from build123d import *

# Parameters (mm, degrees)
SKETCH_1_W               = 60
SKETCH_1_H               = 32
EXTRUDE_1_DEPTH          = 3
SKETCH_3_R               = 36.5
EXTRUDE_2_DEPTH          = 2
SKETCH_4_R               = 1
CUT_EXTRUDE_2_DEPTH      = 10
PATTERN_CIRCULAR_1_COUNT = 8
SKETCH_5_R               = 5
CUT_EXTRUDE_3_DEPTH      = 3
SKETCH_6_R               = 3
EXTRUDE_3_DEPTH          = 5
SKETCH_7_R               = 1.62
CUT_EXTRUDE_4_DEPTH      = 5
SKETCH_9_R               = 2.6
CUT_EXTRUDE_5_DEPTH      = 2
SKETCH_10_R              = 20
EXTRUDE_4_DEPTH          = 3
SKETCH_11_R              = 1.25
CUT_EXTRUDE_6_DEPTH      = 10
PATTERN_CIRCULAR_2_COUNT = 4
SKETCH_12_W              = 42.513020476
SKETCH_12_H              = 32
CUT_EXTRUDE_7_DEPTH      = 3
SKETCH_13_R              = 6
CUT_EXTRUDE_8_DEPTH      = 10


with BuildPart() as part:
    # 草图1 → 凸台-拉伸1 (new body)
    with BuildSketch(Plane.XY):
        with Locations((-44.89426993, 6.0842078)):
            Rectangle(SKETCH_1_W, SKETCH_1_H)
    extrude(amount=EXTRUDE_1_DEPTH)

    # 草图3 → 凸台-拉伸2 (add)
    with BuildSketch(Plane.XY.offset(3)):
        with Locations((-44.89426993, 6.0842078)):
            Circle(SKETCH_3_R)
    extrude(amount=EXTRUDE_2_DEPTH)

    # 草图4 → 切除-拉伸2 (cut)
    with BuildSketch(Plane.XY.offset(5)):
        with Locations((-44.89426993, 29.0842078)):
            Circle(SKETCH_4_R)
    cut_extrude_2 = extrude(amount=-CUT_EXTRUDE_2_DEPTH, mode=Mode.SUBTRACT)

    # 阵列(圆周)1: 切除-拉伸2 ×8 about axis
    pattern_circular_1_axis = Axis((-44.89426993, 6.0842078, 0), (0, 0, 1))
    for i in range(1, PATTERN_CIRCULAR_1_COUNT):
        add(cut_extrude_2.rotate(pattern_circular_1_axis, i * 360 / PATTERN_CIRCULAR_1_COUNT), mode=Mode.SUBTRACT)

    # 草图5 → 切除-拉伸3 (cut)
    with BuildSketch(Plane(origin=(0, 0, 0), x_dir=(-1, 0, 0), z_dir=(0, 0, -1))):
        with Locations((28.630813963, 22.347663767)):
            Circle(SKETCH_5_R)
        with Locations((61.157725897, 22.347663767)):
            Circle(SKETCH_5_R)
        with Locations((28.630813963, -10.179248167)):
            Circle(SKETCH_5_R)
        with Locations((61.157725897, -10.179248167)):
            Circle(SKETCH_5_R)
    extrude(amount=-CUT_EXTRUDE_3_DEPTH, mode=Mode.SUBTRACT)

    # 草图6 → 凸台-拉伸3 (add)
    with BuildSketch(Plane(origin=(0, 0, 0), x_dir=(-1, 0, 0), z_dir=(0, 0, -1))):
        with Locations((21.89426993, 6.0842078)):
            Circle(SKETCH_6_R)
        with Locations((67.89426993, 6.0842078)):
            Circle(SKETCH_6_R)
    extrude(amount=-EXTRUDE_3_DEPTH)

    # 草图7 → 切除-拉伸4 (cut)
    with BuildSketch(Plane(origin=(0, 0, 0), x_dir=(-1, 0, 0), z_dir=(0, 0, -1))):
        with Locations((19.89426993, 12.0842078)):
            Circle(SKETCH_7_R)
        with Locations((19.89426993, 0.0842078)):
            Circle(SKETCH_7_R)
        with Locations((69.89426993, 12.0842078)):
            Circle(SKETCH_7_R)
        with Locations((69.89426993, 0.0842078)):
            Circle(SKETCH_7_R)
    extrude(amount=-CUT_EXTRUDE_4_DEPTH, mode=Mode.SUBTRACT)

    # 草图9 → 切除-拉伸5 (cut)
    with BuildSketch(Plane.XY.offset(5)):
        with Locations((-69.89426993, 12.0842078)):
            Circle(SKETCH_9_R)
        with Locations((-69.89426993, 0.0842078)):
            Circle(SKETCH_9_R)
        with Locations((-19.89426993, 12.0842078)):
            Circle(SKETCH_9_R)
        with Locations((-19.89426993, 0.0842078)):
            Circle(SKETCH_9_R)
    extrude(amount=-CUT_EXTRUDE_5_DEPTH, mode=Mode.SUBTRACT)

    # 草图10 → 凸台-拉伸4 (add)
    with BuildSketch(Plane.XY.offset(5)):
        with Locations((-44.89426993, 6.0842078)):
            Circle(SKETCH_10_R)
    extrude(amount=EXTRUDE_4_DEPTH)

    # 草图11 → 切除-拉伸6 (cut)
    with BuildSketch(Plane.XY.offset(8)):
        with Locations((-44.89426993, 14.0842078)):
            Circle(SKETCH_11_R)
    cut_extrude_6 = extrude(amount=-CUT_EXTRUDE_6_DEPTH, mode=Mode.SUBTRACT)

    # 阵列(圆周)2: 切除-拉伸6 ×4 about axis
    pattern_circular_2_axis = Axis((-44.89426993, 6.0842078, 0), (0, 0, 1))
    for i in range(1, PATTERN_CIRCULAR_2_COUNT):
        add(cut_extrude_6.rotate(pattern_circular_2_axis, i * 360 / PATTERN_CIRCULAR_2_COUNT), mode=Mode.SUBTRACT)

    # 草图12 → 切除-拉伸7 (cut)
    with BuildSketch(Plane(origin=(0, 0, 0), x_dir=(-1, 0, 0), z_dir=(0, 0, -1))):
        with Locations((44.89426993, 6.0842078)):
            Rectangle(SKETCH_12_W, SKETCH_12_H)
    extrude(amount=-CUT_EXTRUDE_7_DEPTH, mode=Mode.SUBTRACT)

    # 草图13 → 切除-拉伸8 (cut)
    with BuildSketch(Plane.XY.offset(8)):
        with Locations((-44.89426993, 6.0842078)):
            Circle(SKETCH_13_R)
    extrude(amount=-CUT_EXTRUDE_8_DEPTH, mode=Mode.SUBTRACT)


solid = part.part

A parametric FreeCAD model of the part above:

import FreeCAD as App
import Part
import Sketcher

V = App.Vector

doc = App.newDocument("Part")
body = doc.addObject("PartDesign::Body", "Body")

# Sketch on XY plane
sketch1 = doc.addObject("Sketcher::SketchObject", "Sketch")
body.addObject(sketch1)
sketch1.AttachmentSupport = (doc.XY_Plane, [""])
sketch1.MapMode = "FlatFace"
sketch1.addGeometry(Part.LineSegment(V(-75, 22, 0), V(-75, -10, 0)), False)
sketch1.addGeometry(Part.LineSegment(V(-75, -10, 0), V(-15, -10, 0)), False)
sketch1.addGeometry(Part.LineSegment(V(-15, -10, 0), V(-15, 22, 0)), False)
sketch1.addGeometry(Part.LineSegment(V(-15, 22, 0), V(-75, 22, 0)), False)
sketch1.addConstraint(Sketcher.Constraint("Coincident", 0, 2, 1, 1))
sketch1.addConstraint(Sketcher.Constraint("Coincident", 1, 2, 2, 1))
sketch1.addConstraint(Sketcher.Constraint("Coincident", 2, 2, 3, 1))
sketch1.addConstraint(Sketcher.Constraint("Coincident", 3, 2, 0, 1))
sketch1.addConstraint(Sketcher.Constraint("Vertical", 0))
sketch1.addConstraint(Sketcher.Constraint("Horizontal", 1))
sketch1.addConstraint(Sketcher.Constraint("Vertical", 2))
sketch1.addConstraint(Sketcher.Constraint("Horizontal", 3))
sketch1.addConstraint(Sketcher.Constraint("DistanceX", 1, 1, 1, 2, 60.0))
sketch1.addConstraint(Sketcher.Constraint("DistanceY", 0, 2, 0, 1, 32.0))
sketch1.addConstraint(Sketcher.Constraint("DistanceX", 0, 2, -1, 1, 74.89427))
sketch1.addConstraint(Sketcher.Constraint("DistanceY", 0, 2, -1, 1, 9.915792))
pad1 = doc.addObject("PartDesign::Pad", "Pad")
body.addObject(pad1)
pad1.Profile = sketch1
pad1.Length = 3

# Sketch on XY plane
sketch2 = doc.addObject("Sketcher::SketchObject", "Sketch001")
body.addObject(sketch2)
sketch2.AttachmentSupport = (doc.XY_Plane, [""])
sketch2.MapMode = "FlatFace"
sketch2.AttachmentOffset = App.Placement(V(0, 0, 3), App.Rotation())
sketch2.addGeometry(Part.Circle(V(-45, 6, 0), V(0, 0, 1), 36), False)
sketch2.addConstraint(Sketcher.Constraint("Diameter", 0, 73.0))
sketch2.addConstraint(Sketcher.Constraint("DistanceX", 0, 3, -1, 1, 44.89427))
sketch2.addConstraint(Sketcher.Constraint("DistanceY", -1, 1, 0, 3, 6.084208))
pad2 = doc.addObject("PartDesign::Pad", "Pad001")
body.addObject(pad2)
pad2.Profile = sketch2
pad2.Length = 2

# Sketch on XY plane
sketch3 = doc.addObject("Sketcher::SketchObject", "Sketch002")
body.addObject(sketch3)
sketch3.AttachmentSupport = (doc.XY_Plane, [""])
sketch3.MapMode = "FlatFace"
sketch3.AttachmentOffset = App.Placement(V(0, 0, 5), App.Rotation())
sketch3.addGeometry(Part.Circle(V(-44.9, 29.1, 0), V(0, 0, 1), 1), False)
sketch3.addConstraint(Sketcher.Constraint("Diameter", 0, 2.0))
sketch3.addConstraint(Sketcher.Constraint("DistanceX", 0, 3, -1, 1, 44.89427))
sketch3.addConstraint(Sketcher.Constraint("DistanceY", -1, 1, 0, 3, 29.084208))
pocket1 = doc.addObject("PartDesign::Pocket", "Pocket")
body.addObject(pocket1)
pocket1.Profile = sketch3
pocket1.Length = 10
doc.recompute()

datumline = doc.addObject("PartDesign::Line", "DatumLine")
body.addObject(datumline)
datumline.Placement = App.Placement(V(-44.89427, 6.084208, 0), App.Rotation(V(0, 0, 1), V(0, 0, 1)))
polarpattern = doc.addObject("PartDesign::PolarPattern", "PolarPattern")
body.addObject(polarpattern)
polarpattern.Originals = [pocket1]
polarpattern.Axis = (datumline, [""])
polarpattern.Angle = 360
polarpattern.Occurrences = 8
body.Tip = polarpattern

# Sketch on XY plane
sketch4 = doc.addObject("Sketcher::SketchObject", "Sketch003")
body.addObject(sketch4)
sketch4.AttachmentSupport = (doc.XY_Plane, [""])
sketch4.MapMode = "FlatFace"
sketch4.addGeometry(Part.Circle(V(-29, 22, 0), V(0, 0, 1), 5), False)
sketch4.addGeometry(Part.Circle(V(-61, 22, 0), V(0, 0, 1), 5), False)
sketch4.addGeometry(Part.Circle(V(-29, -10, 0), V(0, 0, 1), 5), False)
sketch4.addGeometry(Part.Circle(V(-61, -10, 0), V(0, 0, 1), 5), False)
sketch4.addConstraint(Sketcher.Constraint("Equal", 0, 1))
sketch4.addConstraint(Sketcher.Constraint("Equal", 1, 2))
sketch4.addConstraint(Sketcher.Constraint("Equal", 2, 3))
sketch4.addConstraint(Sketcher.Constraint("Horizontal", 0, 3, 1, 3))
sketch4.addConstraint(Sketcher.Constraint("Horizontal", 2, 3, 3, 3))
sketch4.addConstraint(Sketcher.Constraint("Vertical", 0, 3, 2, 3))
sketch4.addConstraint(Sketcher.Constraint("Vertical", 1, 3, 3, 3))
sketch4.addConstraint(Sketcher.Constraint("Diameter", 0, 10.0))
sketch4.addConstraint(Sketcher.Constraint("DistanceY", 2, 3, -1, 1, 10.179248))
sketch4.addConstraint(Sketcher.Constraint("DistanceX", 1, 3, 0, 3, 32.526912))
sketch4.addConstraint(Sketcher.Constraint("DistanceY", 2, 3, 0, 3, 32.526912))
sketch4.addConstraint(Sketcher.Constraint("DistanceX", 0, 3, -1, 1, 28.630814))
pocket2 = doc.addObject("PartDesign::Pocket", "Pocket001")
body.addObject(pocket2)
pocket2.Profile = sketch4
pocket2.Length = 3
pocket2.Reversed = True

# Sketch on XY plane
sketch5 = doc.addObject("Sketcher::SketchObject", "Sketch004")
body.addObject(sketch5)
sketch5.AttachmentSupport = (doc.XY_Plane, [""])
sketch5.MapMode = "FlatFace"
sketch5.addGeometry(Part.Circle(V(-21.9, 6.1, 0), V(0, 0, 1), 3), False)
sketch5.addGeometry(Part.Circle(V(-67.9, 6.1, 0), V(0, 0, 1), 3), False)
sketch5.addConstraint(Sketcher.Constraint("Equal", 0, 1))
sketch5.addConstraint(Sketcher.Constraint("Horizontal", 0, 3, 1, 3))
sketch5.addConstraint(Sketcher.Constraint("Diameter", 0, 6.0))
sketch5.addConstraint(Sketcher.Constraint("DistanceX", 1, 3, 0, 3, 46.0))
sketch5.addConstraint(Sketcher.Constraint("DistanceX", 0, 3, -1, 1, 21.89427))
sketch5.addConstraint(Sketcher.Constraint("DistanceY", -1, 1, 0, 3, 6.084208))
pad3 = doc.addObject("PartDesign::Pad", "Pad002")
body.addObject(pad3)
pad3.Profile = sketch5
pad3.Length = 5

# Sketch on XY plane
sketch6 = doc.addObject("Sketcher::SketchObject", "Sketch005")
body.addObject(sketch6)
sketch6.AttachmentSupport = (doc.XY_Plane, [""])
sketch6.MapMode = "FlatFace"
sketch6.addGeometry(Part.Circle(V(-19.9, 12.1, 0), V(0, 0, 1), 1.6), False)
sketch6.addGeometry(Part.Circle(V(-19.9, 0.1, 0), V(0, 0, 1), 1.6), False)
sketch6.addGeometry(Part.Circle(V(-69.9, 12.1, 0), V(0, 0, 1), 1.6), False)
sketch6.addGeometry(Part.Circle(V(-69.9, 0.1, 0), V(0, 0, 1), 1.6), False)
sketch6.addConstraint(Sketcher.Constraint("Equal", 0, 1))
sketch6.addConstraint(Sketcher.Constraint("Equal", 1, 2))
sketch6.addConstraint(Sketcher.Constraint("Equal", 2, 3))
sketch6.addConstraint(Sketcher.Constraint("Horizontal", 0, 3, 2, 3))
sketch6.addConstraint(Sketcher.Constraint("Horizontal", 1, 3, 3, 3))
sketch6.addConstraint(Sketcher.Constraint("Vertical", 0, 3, 1, 3))
sketch6.addConstraint(Sketcher.Constraint("Vertical", 2, 3, 3, 3))
sketch6.addConstraint(Sketcher.Constraint("Diameter", 0, 3.24))
sketch6.addConstraint(Sketcher.Constraint("DistanceY", 1, 3, 0, 3, 12.0))
sketch6.addConstraint(Sketcher.Constraint("DistanceX", 2, 3, 0, 3, 50.0))
sketch6.addConstraint(Sketcher.Constraint("DistanceX", 0, 3, -1, 1, 19.89427))
sketch6.addConstraint(Sketcher.Constraint("DistanceY", -1, 1, 0, 3, 12.084208))
pocket3 = doc.addObject("PartDesign::Pocket", "Pocket002")
body.addObject(pocket3)
pocket3.Profile = sketch6
pocket3.Length = 5
pocket3.Reversed = True

# Sketch on XY plane
sketch7 = doc.addObject("Sketcher::SketchObject", "Sketch006")
body.addObject(sketch7)
sketch7.AttachmentSupport = (doc.XY_Plane, [""])
sketch7.MapMode = "FlatFace"
sketch7.AttachmentOffset = App.Placement(V(0, 0, 5), App.Rotation())
sketch7.addGeometry(Part.Circle(V(-69.9, 12.1, 0), V(0, 0, 1), 2.6), False)
sketch7.addGeometry(Part.Circle(V(-69.9, 0.1, 0), V(0, 0, 1), 2.6), False)
sketch7.addGeometry(Part.Circle(V(-19.9, 12.1, 0), V(0, 0, 1), 2.6), False)
sketch7.addGeometry(Part.Circle(V(-19.9, 0.1, 0), V(0, 0, 1), 2.6), False)
sketch7.addConstraint(Sketcher.Constraint("Equal", 0, 1))
sketch7.addConstraint(Sketcher.Constraint("Equal", 1, 2))
sketch7.addConstraint(Sketcher.Constraint("Equal", 2, 3))
sketch7.addConstraint(Sketcher.Constraint("Horizontal", 0, 3, 2, 3))
sketch7.addConstraint(Sketcher.Constraint("Horizontal", 1, 3, 3, 3))
sketch7.addConstraint(Sketcher.Constraint("Vertical", 0, 3, 1, 3))
sketch7.addConstraint(Sketcher.Constraint("Vertical", 2, 3, 3, 3))
sketch7.addConstraint(Sketcher.Constraint("Diameter", 0, 5.2))
sketch7.addConstraint(Sketcher.Constraint("DistanceY", 1, 3, 0, 3, 12.0))
sketch7.addConstraint(Sketcher.Constraint("DistanceX", 0, 3, 2, 3, 50.0))
sketch7.addConstraint(Sketcher.Constraint("DistanceX", 0, 3, -1, 1, 69.89427))
sketch7.addConstraint(Sketcher.Constraint("DistanceY", -1, 1, 0, 3, 12.084208))
pocket4 = doc.addObject("PartDesign::Pocket", "Pocket003")
body.addObject(pocket4)
pocket4.Profile = sketch7
pocket4.Length = 2

# Sketch on XY plane
sketch8 = doc.addObject("Sketcher::SketchObject", "Sketch007")
body.addObject(sketch8)
sketch8.AttachmentSupport = (doc.XY_Plane, [""])
sketch8.MapMode = "FlatFace"
sketch8.AttachmentOffset = App.Placement(V(0, 0, 5), App.Rotation())
sketch8.addGeometry(Part.Circle(V(-45, 6, 0), V(0, 0, 1), 20), False)
sketch8.addConstraint(Sketcher.Constraint("Diameter", 0, 40.0))
sketch8.addConstraint(Sketcher.Constraint("DistanceX", 0, 3, -1, 1, 44.89427))
sketch8.addConstraint(Sketcher.Constraint("DistanceY", -1, 1, 0, 3, 6.084208))
pad4 = doc.addObject("PartDesign::Pad", "Pad003")
body.addObject(pad4)
pad4.Profile = sketch8
pad4.Length = 3

# Sketch on XY plane
sketch9 = doc.addObject("Sketcher::SketchObject", "Sketch008")
body.addObject(sketch9)
sketch9.AttachmentSupport = (doc.XY_Plane, [""])
sketch9.MapMode = "FlatFace"
sketch9.AttachmentOffset = App.Placement(V(0, 0, 8), App.Rotation())
sketch9.addGeometry(Part.Circle(V(-44.9, 14.1, 0), V(0, 0, 1), 1.2), False)
sketch9.addConstraint(Sketcher.Constraint("Diameter", 0, 2.5))
sketch9.addConstraint(Sketcher.Constraint("DistanceX", 0, 3, -1, 1, 44.89427))
sketch9.addConstraint(Sketcher.Constraint("DistanceY", -1, 1, 0, 3, 14.084208))
pocket5 = doc.addObject("PartDesign::Pocket", "Pocket004")
body.addObject(pocket5)
pocket5.Profile = sketch9
pocket5.Length = 10
doc.recompute()

datumline2 = doc.addObject("PartDesign::Line", "DatumLine001")
body.addObject(datumline2)
datumline2.Placement = App.Placement(V(-44.89427, 6.084208, 0), App.Rotation(V(0, 0, 1), V(0, 0, 1)))
polarpattern2 = doc.addObject("PartDesign::PolarPattern", "PolarPattern001")
body.addObject(polarpattern2)
polarpattern2.Originals = [pocket5]
polarpattern2.Axis = (datumline2, [""])
polarpattern2.Angle = 360
polarpattern2.Occurrences = 4
body.Tip = polarpattern2

# Sketch on XY plane
sketch10 = doc.addObject("Sketcher::SketchObject", "Sketch009")
body.addObject(sketch10)
sketch10.AttachmentSupport = (doc.XY_Plane, [""])
sketch10.MapMode = "FlatFace"
sketch10.addGeometry(Part.LineSegment(V(-24, 22, 0), V(-24, -10, 0)), False)
sketch10.addGeometry(Part.LineSegment(V(-24, -10, 0), V(-66, -10, 0)), False)
sketch10.addGeometry(Part.LineSegment(V(-66, -10, 0), V(-66, 22, 0)), False)
sketch10.addGeometry(Part.LineSegment(V(-66, 22, 0), V(-24, 22, 0)), False)
sketch10.addConstraint(Sketcher.Constraint("Coincident", 0, 2, 1, 1))
sketch10.addConstraint(Sketcher.Constraint("Coincident", 1, 2, 2, 1))
sketch10.addConstraint(Sketcher.Constraint("Coincident", 2, 2, 3, 1))
sketch10.addConstraint(Sketcher.Constraint("Coincident", 3, 2, 0, 1))
sketch10.addConstraint(Sketcher.Constraint("Vertical", 0))
sketch10.addConstraint(Sketcher.Constraint("Horizontal", 1))
sketch10.addConstraint(Sketcher.Constraint("Vertical", 2))
sketch10.addConstraint(Sketcher.Constraint("Horizontal", 3))
sketch10.addConstraint(Sketcher.Constraint("DistanceY", 0, 2, 0, 1, 32.0))
sketch10.addConstraint(Sketcher.Constraint("DistanceX", 1, 2, 1, 1, 42.51302))
sketch10.addConstraint(Sketcher.Constraint("DistanceX", 0, 2, -1, 1, 23.63776))
sketch10.addConstraint(Sketcher.Constraint("DistanceY", 0, 2, -1, 1, 9.915792))
pocket6 = doc.addObject("PartDesign::Pocket", "Pocket005")
body.addObject(pocket6)
pocket6.Profile = sketch10
pocket6.Length = 3
pocket6.Reversed = True

# Sketch on XY plane
sketch11 = doc.addObject("Sketcher::SketchObject", "Sketch010")
body.addObject(sketch11)
sketch11.AttachmentSupport = (doc.XY_Plane, [""])
sketch11.MapMode = "FlatFace"
sketch11.AttachmentOffset = App.Placement(V(0, 0, 8), App.Rotation())
sketch11.addGeometry(Part.Circle(V(-45, 6, 0), V(0, 0, 1), 6), False)
sketch11.addConstraint(Sketcher.Constraint("Diameter", 0, 12.0))
sketch11.addConstraint(Sketcher.Constraint("DistanceX", 0, 3, -1, 1, 44.89427))
sketch11.addConstraint(Sketcher.Constraint("DistanceY", -1, 1, 0, 3, 6.084208))
pocket7 = doc.addObject("PartDesign::Pocket", "Pocket006")
body.addObject(pocket7)
pocket7.Profile = sketch11
pocket7.Length = 10

doc.recompute()
